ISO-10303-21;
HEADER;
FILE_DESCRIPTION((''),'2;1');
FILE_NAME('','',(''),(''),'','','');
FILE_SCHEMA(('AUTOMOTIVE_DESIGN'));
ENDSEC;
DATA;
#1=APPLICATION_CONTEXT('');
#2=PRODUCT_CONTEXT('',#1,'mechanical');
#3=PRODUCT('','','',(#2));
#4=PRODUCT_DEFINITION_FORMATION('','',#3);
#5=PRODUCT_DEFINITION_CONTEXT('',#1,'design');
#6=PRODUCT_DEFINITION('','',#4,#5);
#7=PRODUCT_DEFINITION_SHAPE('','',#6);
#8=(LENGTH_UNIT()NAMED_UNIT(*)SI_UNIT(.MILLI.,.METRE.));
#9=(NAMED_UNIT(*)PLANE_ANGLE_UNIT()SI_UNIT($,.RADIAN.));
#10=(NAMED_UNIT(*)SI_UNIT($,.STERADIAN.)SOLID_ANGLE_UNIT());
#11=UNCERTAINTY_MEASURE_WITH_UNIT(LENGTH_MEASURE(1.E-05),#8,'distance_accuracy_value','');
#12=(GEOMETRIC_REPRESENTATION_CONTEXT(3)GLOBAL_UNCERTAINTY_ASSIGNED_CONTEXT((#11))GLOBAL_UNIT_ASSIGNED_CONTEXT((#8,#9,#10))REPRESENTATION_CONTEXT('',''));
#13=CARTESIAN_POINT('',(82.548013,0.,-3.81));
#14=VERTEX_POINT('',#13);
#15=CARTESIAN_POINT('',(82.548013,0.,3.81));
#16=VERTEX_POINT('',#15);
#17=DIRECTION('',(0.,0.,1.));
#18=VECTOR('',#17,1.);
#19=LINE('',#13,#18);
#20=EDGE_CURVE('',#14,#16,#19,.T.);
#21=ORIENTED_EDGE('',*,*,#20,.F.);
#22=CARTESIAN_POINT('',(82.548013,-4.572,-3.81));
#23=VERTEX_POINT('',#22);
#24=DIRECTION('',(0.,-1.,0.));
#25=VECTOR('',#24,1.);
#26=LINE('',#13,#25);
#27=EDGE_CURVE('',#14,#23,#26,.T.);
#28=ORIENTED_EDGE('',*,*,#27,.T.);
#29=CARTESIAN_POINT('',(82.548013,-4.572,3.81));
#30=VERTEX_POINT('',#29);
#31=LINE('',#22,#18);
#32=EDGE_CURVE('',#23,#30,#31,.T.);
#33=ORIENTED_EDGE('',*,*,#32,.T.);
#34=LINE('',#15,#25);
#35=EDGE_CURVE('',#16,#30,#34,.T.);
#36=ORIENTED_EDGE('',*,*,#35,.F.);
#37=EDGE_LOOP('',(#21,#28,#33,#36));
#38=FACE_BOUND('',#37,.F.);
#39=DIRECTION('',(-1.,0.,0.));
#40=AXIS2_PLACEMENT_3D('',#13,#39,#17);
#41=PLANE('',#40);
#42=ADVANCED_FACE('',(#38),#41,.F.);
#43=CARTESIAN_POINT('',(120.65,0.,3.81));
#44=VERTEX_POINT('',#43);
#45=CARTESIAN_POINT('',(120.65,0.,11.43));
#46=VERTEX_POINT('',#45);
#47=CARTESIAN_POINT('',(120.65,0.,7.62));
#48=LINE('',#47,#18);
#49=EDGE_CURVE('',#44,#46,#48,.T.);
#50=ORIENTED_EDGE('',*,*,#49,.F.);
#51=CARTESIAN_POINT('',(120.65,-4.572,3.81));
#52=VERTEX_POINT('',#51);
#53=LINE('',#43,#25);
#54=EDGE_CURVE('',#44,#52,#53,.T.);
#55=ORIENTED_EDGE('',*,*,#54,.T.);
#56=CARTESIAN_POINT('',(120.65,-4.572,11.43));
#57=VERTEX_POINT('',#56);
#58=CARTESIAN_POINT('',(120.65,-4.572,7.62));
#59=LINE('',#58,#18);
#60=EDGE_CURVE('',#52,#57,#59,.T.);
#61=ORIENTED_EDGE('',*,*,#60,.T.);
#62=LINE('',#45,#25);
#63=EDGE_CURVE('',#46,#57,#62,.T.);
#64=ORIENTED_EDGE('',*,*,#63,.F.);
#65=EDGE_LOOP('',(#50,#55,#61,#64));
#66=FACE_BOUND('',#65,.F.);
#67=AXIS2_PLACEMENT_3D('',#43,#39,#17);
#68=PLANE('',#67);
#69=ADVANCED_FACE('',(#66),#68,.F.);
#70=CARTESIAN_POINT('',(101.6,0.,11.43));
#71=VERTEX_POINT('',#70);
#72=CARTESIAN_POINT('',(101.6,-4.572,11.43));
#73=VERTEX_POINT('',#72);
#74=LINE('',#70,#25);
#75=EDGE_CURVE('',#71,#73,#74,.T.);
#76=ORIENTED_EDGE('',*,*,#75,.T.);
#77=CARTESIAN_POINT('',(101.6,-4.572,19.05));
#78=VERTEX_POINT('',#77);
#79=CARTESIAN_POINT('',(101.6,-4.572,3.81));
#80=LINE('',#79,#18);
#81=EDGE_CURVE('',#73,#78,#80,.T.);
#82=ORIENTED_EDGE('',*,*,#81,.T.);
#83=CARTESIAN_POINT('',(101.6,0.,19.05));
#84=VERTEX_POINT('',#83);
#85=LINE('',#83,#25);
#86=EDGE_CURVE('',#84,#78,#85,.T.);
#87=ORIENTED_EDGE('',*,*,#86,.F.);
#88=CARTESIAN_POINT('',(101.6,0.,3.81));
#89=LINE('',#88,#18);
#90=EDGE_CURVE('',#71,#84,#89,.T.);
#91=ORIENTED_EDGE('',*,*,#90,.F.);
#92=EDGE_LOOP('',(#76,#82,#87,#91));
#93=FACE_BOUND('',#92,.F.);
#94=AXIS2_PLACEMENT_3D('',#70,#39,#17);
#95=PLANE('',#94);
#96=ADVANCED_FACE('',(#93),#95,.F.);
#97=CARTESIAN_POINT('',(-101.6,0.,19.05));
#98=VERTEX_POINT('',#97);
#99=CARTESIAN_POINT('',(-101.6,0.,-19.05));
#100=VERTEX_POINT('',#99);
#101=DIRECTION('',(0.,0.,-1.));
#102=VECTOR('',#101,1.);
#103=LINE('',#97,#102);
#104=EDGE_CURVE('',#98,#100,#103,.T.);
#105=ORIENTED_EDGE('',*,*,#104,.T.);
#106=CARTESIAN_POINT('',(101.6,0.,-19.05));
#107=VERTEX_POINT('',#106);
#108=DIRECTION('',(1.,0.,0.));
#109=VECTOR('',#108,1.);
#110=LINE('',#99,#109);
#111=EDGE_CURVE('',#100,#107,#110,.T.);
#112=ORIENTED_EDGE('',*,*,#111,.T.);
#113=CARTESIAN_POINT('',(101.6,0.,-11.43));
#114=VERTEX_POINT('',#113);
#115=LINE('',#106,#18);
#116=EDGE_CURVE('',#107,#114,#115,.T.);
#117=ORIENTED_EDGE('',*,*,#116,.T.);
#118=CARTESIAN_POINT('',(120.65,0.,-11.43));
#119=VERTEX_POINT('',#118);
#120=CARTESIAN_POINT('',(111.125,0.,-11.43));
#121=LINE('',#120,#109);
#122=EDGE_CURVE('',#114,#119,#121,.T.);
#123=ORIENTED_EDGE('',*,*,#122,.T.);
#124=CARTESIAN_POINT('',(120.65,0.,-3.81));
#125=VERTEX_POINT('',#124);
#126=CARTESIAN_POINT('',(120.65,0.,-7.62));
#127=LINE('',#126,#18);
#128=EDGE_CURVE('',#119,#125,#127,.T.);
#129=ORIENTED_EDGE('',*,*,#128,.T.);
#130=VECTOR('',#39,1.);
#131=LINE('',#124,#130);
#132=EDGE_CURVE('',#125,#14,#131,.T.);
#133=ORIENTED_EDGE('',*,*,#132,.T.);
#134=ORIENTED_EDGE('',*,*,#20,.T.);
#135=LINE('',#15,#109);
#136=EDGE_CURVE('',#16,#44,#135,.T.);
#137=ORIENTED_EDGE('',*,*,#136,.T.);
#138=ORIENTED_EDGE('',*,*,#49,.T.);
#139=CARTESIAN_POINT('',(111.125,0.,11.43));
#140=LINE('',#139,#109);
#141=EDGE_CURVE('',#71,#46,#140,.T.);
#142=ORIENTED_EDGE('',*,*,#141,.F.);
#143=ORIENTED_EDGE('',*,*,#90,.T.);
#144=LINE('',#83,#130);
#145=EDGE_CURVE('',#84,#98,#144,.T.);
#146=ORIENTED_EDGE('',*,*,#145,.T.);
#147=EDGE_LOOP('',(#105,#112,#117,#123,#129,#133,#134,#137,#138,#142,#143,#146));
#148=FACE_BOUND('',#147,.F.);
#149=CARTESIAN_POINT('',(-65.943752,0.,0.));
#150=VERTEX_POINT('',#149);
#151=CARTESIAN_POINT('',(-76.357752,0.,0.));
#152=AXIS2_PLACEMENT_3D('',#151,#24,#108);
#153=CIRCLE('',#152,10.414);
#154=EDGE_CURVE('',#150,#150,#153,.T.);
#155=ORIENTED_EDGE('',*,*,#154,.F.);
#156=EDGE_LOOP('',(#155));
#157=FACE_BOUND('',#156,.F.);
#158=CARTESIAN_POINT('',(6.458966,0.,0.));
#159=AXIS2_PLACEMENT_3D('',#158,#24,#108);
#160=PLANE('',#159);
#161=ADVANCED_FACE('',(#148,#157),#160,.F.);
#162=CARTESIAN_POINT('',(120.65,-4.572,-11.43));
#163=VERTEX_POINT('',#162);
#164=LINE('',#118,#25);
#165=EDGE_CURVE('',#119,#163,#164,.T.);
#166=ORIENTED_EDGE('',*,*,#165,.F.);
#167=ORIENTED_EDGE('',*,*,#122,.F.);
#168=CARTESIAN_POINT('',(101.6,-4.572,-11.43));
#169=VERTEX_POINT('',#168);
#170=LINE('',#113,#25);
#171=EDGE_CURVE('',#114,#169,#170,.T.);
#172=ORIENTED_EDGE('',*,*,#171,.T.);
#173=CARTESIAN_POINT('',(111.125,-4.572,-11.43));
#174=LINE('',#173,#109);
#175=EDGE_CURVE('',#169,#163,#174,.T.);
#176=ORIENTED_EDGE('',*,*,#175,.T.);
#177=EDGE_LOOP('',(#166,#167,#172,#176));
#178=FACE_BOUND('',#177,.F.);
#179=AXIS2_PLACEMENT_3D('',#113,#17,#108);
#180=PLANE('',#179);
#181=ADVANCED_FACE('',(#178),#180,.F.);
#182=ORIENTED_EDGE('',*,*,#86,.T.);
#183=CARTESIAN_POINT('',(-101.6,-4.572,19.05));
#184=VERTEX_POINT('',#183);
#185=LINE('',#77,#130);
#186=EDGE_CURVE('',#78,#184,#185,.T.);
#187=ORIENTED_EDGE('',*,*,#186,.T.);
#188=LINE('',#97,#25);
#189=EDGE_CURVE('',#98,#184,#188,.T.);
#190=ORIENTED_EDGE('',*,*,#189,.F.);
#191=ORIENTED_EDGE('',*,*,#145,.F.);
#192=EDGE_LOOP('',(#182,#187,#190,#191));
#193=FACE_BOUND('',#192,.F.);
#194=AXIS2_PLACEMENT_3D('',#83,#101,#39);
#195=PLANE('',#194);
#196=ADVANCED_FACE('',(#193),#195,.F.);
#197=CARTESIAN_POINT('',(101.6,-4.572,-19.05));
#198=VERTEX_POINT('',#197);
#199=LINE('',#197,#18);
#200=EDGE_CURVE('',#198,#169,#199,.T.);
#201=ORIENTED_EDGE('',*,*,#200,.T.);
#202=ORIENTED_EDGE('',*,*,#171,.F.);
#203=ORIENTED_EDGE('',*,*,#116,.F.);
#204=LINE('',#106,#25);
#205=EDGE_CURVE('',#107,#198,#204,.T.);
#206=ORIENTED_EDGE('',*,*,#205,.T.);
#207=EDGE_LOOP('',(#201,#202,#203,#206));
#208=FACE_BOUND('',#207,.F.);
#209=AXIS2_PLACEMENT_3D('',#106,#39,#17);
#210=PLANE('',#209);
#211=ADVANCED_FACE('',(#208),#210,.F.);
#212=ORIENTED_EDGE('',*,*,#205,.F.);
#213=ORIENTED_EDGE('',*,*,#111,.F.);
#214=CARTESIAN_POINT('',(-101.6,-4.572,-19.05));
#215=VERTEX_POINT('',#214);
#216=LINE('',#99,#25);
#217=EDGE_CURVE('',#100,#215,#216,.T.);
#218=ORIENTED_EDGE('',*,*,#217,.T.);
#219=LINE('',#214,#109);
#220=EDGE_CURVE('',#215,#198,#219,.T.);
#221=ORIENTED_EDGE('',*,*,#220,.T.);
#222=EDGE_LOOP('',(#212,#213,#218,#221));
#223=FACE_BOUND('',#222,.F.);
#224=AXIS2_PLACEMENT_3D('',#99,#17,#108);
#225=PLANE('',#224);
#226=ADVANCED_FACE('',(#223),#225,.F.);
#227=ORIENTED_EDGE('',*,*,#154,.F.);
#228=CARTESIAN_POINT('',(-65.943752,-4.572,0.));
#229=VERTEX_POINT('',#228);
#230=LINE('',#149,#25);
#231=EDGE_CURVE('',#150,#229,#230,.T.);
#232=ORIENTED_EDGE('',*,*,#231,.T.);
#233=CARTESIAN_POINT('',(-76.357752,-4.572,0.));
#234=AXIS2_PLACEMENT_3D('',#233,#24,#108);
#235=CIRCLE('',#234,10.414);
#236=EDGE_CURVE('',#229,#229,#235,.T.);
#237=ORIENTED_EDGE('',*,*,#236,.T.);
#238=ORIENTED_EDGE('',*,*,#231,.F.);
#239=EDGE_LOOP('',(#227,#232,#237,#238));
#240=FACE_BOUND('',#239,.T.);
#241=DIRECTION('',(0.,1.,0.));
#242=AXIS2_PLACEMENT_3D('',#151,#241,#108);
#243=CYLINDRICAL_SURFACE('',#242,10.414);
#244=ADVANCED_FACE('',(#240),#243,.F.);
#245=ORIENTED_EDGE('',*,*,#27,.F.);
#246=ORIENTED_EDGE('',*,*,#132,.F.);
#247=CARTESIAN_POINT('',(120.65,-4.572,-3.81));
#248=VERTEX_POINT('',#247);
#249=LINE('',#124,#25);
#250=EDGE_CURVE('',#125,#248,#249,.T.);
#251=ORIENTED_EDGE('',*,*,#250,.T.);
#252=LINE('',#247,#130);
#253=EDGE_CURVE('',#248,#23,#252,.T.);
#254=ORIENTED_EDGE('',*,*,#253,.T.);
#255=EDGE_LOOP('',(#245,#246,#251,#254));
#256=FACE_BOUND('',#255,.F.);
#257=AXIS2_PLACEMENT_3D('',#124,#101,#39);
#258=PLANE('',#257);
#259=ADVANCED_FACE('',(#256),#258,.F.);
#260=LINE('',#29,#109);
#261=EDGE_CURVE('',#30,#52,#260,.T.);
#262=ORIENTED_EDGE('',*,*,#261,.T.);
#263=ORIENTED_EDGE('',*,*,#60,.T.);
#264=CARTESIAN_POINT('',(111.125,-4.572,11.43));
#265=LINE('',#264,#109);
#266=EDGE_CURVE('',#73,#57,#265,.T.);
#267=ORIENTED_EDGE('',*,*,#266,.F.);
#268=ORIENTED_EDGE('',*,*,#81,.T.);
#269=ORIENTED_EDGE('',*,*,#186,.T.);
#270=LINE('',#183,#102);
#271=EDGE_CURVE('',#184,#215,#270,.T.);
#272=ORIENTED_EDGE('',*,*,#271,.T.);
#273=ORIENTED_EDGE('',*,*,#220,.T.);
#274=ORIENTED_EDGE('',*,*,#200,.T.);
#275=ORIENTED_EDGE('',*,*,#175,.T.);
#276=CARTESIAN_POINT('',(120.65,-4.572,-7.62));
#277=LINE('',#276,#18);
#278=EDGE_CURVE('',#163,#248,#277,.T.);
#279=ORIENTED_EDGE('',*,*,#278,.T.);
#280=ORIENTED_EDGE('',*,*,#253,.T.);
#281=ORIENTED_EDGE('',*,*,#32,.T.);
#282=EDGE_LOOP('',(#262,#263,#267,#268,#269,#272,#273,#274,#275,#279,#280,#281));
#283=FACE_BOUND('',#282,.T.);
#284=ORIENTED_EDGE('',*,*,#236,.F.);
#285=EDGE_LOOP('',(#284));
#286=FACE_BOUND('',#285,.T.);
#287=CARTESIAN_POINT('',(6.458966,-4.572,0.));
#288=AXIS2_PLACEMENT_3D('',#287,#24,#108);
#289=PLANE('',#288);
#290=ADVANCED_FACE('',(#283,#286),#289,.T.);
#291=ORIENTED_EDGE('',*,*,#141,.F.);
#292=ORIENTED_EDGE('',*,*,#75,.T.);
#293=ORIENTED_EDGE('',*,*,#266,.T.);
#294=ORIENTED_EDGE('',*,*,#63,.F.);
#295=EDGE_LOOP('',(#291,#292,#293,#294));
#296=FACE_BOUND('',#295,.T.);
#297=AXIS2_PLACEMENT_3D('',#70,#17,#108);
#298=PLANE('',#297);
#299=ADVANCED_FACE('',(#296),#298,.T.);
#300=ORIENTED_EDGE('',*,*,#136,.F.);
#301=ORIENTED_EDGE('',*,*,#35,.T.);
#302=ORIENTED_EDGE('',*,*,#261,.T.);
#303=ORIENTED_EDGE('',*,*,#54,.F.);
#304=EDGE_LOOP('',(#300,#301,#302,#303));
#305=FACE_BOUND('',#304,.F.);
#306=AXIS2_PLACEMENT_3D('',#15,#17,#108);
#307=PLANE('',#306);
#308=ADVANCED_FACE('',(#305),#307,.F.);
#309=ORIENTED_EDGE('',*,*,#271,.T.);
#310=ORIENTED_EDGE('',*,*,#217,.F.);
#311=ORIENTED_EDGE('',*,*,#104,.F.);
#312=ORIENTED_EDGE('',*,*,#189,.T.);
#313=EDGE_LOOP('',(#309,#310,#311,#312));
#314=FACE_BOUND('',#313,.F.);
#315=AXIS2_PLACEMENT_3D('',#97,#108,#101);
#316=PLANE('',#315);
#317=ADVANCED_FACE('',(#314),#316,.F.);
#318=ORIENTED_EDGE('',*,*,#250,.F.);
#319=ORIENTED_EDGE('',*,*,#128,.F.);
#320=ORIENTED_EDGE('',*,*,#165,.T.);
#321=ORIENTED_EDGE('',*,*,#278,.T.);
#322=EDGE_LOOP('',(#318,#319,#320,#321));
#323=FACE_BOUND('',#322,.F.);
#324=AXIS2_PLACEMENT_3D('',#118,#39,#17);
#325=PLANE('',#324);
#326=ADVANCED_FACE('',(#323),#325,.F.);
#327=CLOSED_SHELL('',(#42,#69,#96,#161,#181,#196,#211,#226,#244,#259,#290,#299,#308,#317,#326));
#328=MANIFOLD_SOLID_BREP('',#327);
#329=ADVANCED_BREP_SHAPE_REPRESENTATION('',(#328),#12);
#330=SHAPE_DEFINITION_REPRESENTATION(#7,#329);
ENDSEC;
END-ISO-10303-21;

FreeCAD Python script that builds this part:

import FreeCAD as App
import Part
import Sketcher

V = App.Vector
Q = App.Units.Quantity

doc = App.newDocument("Part")
body = doc.addObject("PartDesign::Body", "Body")

# Sketch on XZ plane
sketch1 = body.newObject("Sketcher::SketchObject", "Sketch")
sketch1.AttachmentSupport = (doc.getObject("XZ_Plane"), [""])
sketch1.MapMode = "FlatFace"
sketch1.addGeometry([
    Part.LineSegment(V(-102, -19, 0), V(102, -19, 0)),  # 0
    Part.LineSegment(V(102, -19, 0), V(102, -11, 0)),  # 1
    Part.LineSegment(V(102, -11, 0), V(121, -11, 0)),  # 2
    Part.LineSegment(V(121, -11, 0), V(121, -4, 0)),  # 3
    Part.LineSegment(V(121, -4, 0), V(83, -4, 0)),  # 4
    Part.LineSegment(V(83, -4, 0), V(83, 4, 0)),  # 5
    Part.LineSegment(V(83, 4, 0), V(121, 4, 0)),  # 6
    Part.LineSegment(V(121, 4, 0), V(121, 11, 0)),  # 7
    Part.LineSegment(V(121, 11, 0), V(102, 11, 0)),  # 8
    Part.LineSegment(V(102, 11, 0), V(102, 19, 0)),  # 9
    Part.LineSegment(V(102, 19, 0), V(-102, 19, 0)),  # 10
    Part.LineSegment(V(-102, 19, 0), V(-102, -19, 0)),  # 11
    Part.Circle(V(-76, 0, 0), V(0, 0, 1), 10),  # 12
], False)
sketch1.addConstraint([
    Sketcher.Constraint("Coincident", 0, 2, 1, 1),
    Sketcher.Constraint("Coincident", 1, 2, 2, 1),
    Sketcher.Constraint("Coincident", 2, 2, 3, 1),
    Sketcher.Constraint("Coincident", 3, 2, 4, 1),
    Sketcher.Constraint("Coincident", 4, 2, 5, 1),
    Sketcher.Constraint("Coincident", 5, 2, 6, 1),
    Sketcher.Constraint("Coincident", 6, 2, 7, 1),
    Sketcher.Constraint("Coincident", 7, 2, 8, 1),
    Sketcher.Constraint("Coincident", 8, 2, 9, 1),
    Sketcher.Constraint("Coincident", 9, 2, 10, 1),
    Sketcher.Constraint("Coincident", 10, 2, 11, 1),
    Sketcher.Constraint("Coincident", 11, 2, 0, 1),
    Sketcher.Constraint("Horizontal", 0),
    Sketcher.Constraint("Vertical", 1),
    Sketcher.Constraint("Horizontal", 2),
    Sketcher.Constraint("Vertical", 3),
    Sketcher.Constraint("Horizontal", 4),
    Sketcher.Constraint("Vertical", 5),
    Sketcher.Constraint("Horizontal", 6),
    Sketcher.Constraint("Vertical", 7),
    Sketcher.Constraint("Horizontal", 8),
    Sketcher.Constraint("Vertical", 9),
    Sketcher.Constraint("Horizontal", 10),
    Sketcher.Constraint("Vertical", 11),
    Sketcher.Constraint("Symmetric", 0, 2, 10, 2, -1, 1),
    Sketcher.Constraint("Symmetric", 3, 2, 6, 2, -1),
    Sketcher.Constraint("Symmetric", 1, 2, 8, 2, -1),
    Sketcher.Constraint("PointOnObject", 12, 3, -1),
    Sketcher.Constraint("Equal", 1, 3),
    Sketcher.Constraint("Equal", 3, 5),
    Sketcher.Constraint("Diameter", 12, Q("0.82 in")),
    Sketcher.Constraint("DistanceX", 0, 1, 0, 2, Q("8 in")),
    Sketcher.Constraint("DistanceY", 1, 1, 1, 2, Q("0.3 in")),
    Sketcher.Constraint("DistanceX", 2, 1, 2, 2, Q("0.75 in")),
    Sketcher.Constraint("DistanceX", 4, 2, 4, 1, Q("38.101987 mm")),
    Sketcher.Constraint("DistanceX", 12, 3, 0, 2, Q("177.957752 mm")),
])
pad1 = body.newObject("PartDesign::Pad", "Pad")
pad1.Profile = sketch1
pad1.Length = Q("0.18 in")

doc.recompute()
